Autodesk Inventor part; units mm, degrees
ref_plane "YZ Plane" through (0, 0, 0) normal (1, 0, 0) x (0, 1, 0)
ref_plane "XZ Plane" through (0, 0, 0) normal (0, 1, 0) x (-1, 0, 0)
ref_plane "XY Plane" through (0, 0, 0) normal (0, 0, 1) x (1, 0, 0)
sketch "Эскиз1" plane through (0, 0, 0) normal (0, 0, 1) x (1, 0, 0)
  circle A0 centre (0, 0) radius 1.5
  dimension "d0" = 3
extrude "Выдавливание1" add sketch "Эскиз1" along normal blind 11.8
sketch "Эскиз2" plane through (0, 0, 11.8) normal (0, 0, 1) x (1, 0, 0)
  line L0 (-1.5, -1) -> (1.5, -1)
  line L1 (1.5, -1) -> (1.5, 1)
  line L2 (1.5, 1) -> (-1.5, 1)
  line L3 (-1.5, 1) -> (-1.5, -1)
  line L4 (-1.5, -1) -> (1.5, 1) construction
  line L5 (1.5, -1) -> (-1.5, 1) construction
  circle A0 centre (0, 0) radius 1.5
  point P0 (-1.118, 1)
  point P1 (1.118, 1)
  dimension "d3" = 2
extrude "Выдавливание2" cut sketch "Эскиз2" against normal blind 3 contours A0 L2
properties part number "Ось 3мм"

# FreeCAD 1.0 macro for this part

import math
import FreeCAD as App
import Part
import Sketcher

V = App.Vector

doc = App.newDocument("Part")
body = doc.addObject("PartDesign::Body", "Body")

sketch1 = body.newObject("Sketcher::SketchObject", "Sketch")
sketch1.AttachmentSupport = (doc.getObject("XY_Plane"), [""])
sketch1.MapMode = "FlatFace"
sketch1.addGeometry(Part.Circle(V(0, 0, 0), V(0, 0, 1), 1.5), False)
sketch1.addConstraint(Sketcher.Constraint("Coincident", 0, 3, -1, 1))
sketch1.addConstraint(Sketcher.Constraint("Diameter", 0, 3.0))
pad1 = body.newObject("PartDesign::Pad", "Pad")
pad1.Profile = sketch1
pad1.Length = 11.8

sketch2 = body.newObject("Sketcher::SketchObject", "Sketch001")
sketch2.AttachmentSupport = (doc.getObject("XY_Plane"), [""])
sketch2.MapMode = "FlatFace"
sketch2.AttachmentOffset = App.Placement(V(0, 0, 11.8), App.Rotation())
sketch2.addGeometry(Part.ArcOfCircle(Part.Circle(V(0, 0, 0), V(0, 0, 1), 1.5), math.radians(41.810315), math.radians(138.189685)), False)
sketch2.addGeometry(Part.LineSegment(V(-1.118034, 1, 0), V(1.118034, 1, 0)), False)
sketch2.addConstraint(Sketcher.Constraint("Coincident", 0, 1, 1, 2))
sketch2.addConstraint(Sketcher.Constraint("Coincident", 1, 1, 0, 2))
sketch2.addConstraint(Sketcher.Constraint("Horizontal", 1))
sketch2.addConstraint(Sketcher.Constraint("Coincident", 0, 3, -1, 1))
sketch2.addConstraint(Sketcher.Constraint("Radius", 0, 1.5))
sketch2.addConstraint(Sketcher.Constraint("DistanceY", -1, 1, 0, 1, 1.0))
pocket1 = body.newObject("PartDesign::Pocket", "Pocket")
pocket1.Profile = sketch2
pocket1.Length = 3

doc.recompute()
